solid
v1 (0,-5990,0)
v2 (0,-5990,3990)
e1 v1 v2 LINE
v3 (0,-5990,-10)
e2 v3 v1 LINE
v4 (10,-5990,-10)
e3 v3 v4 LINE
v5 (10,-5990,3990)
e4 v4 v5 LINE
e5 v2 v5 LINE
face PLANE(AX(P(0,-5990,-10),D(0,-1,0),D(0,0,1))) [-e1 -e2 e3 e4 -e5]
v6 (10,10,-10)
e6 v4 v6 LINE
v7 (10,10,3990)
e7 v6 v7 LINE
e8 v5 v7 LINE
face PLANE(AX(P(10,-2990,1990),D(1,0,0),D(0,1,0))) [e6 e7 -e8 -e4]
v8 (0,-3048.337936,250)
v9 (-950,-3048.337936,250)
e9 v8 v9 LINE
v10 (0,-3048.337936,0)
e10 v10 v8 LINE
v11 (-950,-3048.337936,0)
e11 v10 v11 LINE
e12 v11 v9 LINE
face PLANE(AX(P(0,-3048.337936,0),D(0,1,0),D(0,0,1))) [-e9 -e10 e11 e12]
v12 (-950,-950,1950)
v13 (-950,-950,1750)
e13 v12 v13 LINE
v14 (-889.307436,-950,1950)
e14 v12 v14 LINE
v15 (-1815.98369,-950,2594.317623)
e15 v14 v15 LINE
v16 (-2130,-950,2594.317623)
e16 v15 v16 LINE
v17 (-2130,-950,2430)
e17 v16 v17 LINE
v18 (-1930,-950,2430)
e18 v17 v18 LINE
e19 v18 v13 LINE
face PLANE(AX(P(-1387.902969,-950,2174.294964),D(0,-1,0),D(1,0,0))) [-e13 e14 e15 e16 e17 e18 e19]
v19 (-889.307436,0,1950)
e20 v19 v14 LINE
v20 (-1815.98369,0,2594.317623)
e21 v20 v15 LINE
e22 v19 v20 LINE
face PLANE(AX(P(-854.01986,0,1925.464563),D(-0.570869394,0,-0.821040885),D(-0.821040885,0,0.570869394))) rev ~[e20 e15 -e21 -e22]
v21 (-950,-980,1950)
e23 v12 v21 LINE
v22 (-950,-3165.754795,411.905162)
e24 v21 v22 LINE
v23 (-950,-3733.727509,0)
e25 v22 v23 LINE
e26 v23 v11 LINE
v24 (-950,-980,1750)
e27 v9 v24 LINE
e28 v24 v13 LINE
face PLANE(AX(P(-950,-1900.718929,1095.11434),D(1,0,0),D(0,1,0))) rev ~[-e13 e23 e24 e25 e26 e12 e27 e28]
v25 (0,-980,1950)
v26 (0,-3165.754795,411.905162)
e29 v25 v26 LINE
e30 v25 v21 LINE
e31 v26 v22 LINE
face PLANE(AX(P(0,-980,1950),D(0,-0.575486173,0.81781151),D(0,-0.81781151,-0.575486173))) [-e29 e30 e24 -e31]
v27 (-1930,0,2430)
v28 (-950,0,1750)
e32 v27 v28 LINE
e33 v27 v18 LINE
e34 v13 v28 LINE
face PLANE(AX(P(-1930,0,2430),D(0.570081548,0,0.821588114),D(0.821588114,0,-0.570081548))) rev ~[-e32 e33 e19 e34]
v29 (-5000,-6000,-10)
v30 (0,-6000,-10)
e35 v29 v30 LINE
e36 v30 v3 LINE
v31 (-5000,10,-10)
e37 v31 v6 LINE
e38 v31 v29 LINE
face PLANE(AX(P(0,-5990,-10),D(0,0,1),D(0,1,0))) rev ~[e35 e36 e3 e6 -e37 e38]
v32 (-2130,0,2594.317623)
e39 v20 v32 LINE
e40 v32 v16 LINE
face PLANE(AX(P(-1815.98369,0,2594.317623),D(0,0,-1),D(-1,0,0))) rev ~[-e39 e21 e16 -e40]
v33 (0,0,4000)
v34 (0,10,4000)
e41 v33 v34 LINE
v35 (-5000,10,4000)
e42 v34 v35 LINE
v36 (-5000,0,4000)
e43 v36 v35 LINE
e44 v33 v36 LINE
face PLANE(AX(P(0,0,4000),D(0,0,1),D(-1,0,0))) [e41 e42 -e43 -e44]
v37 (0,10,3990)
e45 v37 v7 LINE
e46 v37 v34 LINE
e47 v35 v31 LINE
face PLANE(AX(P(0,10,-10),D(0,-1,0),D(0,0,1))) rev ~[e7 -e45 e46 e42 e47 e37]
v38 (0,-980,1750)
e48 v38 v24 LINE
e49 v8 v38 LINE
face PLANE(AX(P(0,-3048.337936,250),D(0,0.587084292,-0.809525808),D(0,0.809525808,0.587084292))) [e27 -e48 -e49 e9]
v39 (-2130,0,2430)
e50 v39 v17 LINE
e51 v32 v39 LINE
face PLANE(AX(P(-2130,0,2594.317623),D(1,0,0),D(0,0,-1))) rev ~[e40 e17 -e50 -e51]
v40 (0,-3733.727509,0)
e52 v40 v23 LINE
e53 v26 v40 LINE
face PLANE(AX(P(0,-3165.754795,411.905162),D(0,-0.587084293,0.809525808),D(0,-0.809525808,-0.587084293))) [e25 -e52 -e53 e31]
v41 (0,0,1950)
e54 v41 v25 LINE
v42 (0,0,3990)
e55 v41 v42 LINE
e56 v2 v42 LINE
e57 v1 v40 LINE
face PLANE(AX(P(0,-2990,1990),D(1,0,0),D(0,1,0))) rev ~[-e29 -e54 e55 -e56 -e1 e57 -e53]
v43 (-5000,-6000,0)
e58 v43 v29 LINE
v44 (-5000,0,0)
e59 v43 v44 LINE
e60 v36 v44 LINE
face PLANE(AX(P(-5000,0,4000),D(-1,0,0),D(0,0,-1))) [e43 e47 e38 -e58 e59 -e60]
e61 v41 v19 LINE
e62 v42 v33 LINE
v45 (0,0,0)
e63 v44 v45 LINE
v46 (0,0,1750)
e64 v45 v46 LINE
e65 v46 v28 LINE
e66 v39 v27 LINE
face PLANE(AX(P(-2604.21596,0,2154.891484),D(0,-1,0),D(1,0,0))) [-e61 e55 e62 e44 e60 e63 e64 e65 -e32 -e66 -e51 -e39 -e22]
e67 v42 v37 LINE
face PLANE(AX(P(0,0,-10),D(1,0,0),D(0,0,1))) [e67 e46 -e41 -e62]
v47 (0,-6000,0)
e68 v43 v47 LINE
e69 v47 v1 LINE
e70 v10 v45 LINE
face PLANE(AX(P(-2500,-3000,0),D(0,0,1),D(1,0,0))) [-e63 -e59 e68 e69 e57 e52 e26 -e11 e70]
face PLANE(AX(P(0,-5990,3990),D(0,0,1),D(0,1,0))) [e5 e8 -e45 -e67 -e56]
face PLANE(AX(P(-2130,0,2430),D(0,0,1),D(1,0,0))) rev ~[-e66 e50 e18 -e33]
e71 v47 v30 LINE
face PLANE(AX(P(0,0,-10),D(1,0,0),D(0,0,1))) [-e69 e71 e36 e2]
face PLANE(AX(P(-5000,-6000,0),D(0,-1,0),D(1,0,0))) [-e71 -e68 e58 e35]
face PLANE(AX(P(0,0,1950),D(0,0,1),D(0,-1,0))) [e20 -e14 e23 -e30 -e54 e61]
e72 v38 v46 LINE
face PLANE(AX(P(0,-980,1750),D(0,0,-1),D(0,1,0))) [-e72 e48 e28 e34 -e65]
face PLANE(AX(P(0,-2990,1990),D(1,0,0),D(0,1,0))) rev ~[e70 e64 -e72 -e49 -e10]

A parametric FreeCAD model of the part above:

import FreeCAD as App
import Part
import Sketcher

V = App.Vector
Q = App.Units.Quantity

doc = App.newDocument("Part")
body = doc.addObject("PartDesign::Body", "Body")

sketch1 = doc.addObject("Sketcher::SketchObject", "Sketch")
body.addObject(sketch1)
sketch1.AttachmentSupport = (doc.XY_Plane, [""])
sketch1.MapMode = "FlatFace"
sketch1.addGeometry([
    Part.LineSegment(V(-5000, 0, 0), V(-5000, -6000, 0)),
    Part.LineSegment(V(-5000, -6000, 0), V(0, -6000, 0)),
    Part.LineSegment(V(0, -6000, 0), V(0, 0, 0)),
    Part.LineSegment(V(0, 0, 0), V(-5000, 0, 0)),
], False)
sketch1.addConstraint([
    Sketcher.Constraint("Coincident", 0, 2, 1, 1),
    Sketcher.Constraint("Coincident", 1, 2, 2, 1),
    Sketcher.Constraint("Coincident", 2, 2, 3, 1),
    Sketcher.Constraint("Coincident", 3, 2, 0, 1),
    Sketcher.Constraint("Vertical", 0),
    Sketcher.Constraint("Horizontal", 1),
    Sketcher.Constraint("Vertical", 2),
    Sketcher.Constraint("Horizontal", 3),
    Sketcher.Constraint("Coincident", 2, 2, -1, 1),
    Sketcher.Constraint("DistanceX", 1, 1, 1, 2, Q("5000 mm")),
    Sketcher.Constraint("DistanceY", 0, 2, 0, 1, Q("6000 mm")),
])
pad1 = doc.addObject("PartDesign::Pad", "Pad")
body.addObject(pad1)
pad1.Profile = sketch1
pad1.Length = 10
pad1.Reversed = True

sketch2 = doc.addObject("Sketcher::SketchObject", "Sketch001")
body.addObject(sketch2)
sketch2.AttachmentSupport = (doc.XZ_Plane, [""])
sketch2.MapMode = "FlatFace"
sketch2.addGeometry([
    Part.LineSegment(V(0, 4000, 0), V(-5000, 4000, 0)),
    Part.LineSegment(V(-5000, 4000, 0), V(-5000, -10, 0)),
    Part.LineSegment(V(-5000, -10, 0), V(0, -10, 0)),
    Part.LineSegment(V(0, -10, 0), V(0, 4000, 0)),
], False)
sketch2.addConstraint([
    Sketcher.Constraint("Coincident", 0, 2, 1, 1),
    Sketcher.Constraint("Coincident", 1, 2, 2, 1),
    Sketcher.Constraint("Coincident", 2, 2, 3, 1),
    Sketcher.Constraint("Coincident", 3, 2, 0, 1),
    Sketcher.Constraint("Horizontal", 0),
    Sketcher.Constraint("Vertical", 1),
    Sketcher.Constraint("Horizontal", 2),
    Sketcher.Constraint("Vertical", 3),
    Sketcher.Constraint("PointOnObject", 2, 2, -2),
    Sketcher.Constraint("DistanceX", 0, 2, 0, 1, Q("5000 mm")),
    Sketcher.Constraint("DistanceY", 1, 2, 1, 1, Q("4010 mm")),
    Sketcher.Constraint("DistanceY", -1, 1, 0, 2, Q("4000 mm")),
])
pad2 = doc.addObject("PartDesign::Pad", "Pad001")
body.addObject(pad2)
pad2.Profile = sketch2
pad2.Length = 10
pad2.Reversed = True

sketch3 = doc.addObject("Sketcher::SketchObject", "Sketch002")
body.addObject(sketch3)
sketch3.AttachmentSupport = (doc.YZ_Plane, [""])
sketch3.MapMode = "FlatFace"
sketch3.addGeometry([
    Part.LineSegment(V(-5990, 3990, 0), V(-5990, -10, 0)),
    Part.LineSegment(V(-5990, -10, 0), V(10, -10, 0)),
    Part.LineSegment(V(10, -10, 0), V(10, 3990, 0)),
    Part.LineSegment(V(10, 3990, 0), V(-5990, 3990, 0)),
], False)
sketch3.addConstraint([
    Sketcher.Constraint("Coincident", 0, 2, 1, 1),
    Sketcher.Constraint("Coincident", 1, 2, 2, 1),
    Sketcher.Constraint("Coincident", 2, 2, 3, 1),
    Sketcher.Constraint("Coincident", 3, 2, 0, 1),
    Sketcher.Constraint("Vertical", 0),
    Sketcher.Constraint("Horizontal", 1),
    Sketcher.Constraint("Vertical", 2),
    Sketcher.Constraint("Horizontal", 3),
    Sketcher.Constraint("DistanceX", 1, 1, 1, 2, Q("6000 mm")),
    Sketcher.Constraint("DistanceY", 0, 2, 0, 1, Q("4000 mm")),
    Sketcher.Constraint("DistanceX", 0, 2, -1, 1, Q("5990 mm")),
    Sketcher.Constraint("DistanceY", 0, 2, -1, 1, Q("10 mm")),
])
pad3 = doc.addObject("PartDesign::Pad", "Pad002")
body.addObject(pad3)
pad3.Profile = sketch3
pad3.Length = 10

sketch4 = doc.addObject("Sketcher::SketchObject", "Sketch003")
body.addObject(sketch4)
sketch4.AttachmentSupport = (doc.YZ_Plane, [""])
sketch4.MapMode = "FlatFace"
sketch4.addGeometry([
    Part.LineSegment(V(-980, 1750, 0), V(0, 1750, 0)),
    Part.LineSegment(V(0, 1750, 0), V(0, 1950, 0)),
    Part.LineSegment(V(0, 1950, 0), V(-980, 1950, 0)),
    Part.LineSegment(V(-980, 1950, 0), V(-3165.754795, 411.905162, 0)),
    Part.LineSegment(V(-3165.754795, 411.905162, 0), V(-3733.727509, 0, 0)),
    Part.LineSegment(V(-3733.727509, 0, 0), V(-3048.337936, 0, 0)),
    Part.LineSegment(V(-3048.337936, 0, 0), V(-3048.337936, 250, 0)),
    Part.LineSegment(V(-3048.337936, 250, 0), V(-980, 1750, 0)),
], False)
sketch4.addConstraint([
    Sketcher.Constraint("Coincident", 0, 2, 1, 1),
    Sketcher.Constraint("Coincident", 1, 2, 2, 1),
    Sketcher.Constraint("Coincident", 2, 2, 3, 1),
    Sketcher.Constraint("Coincident", 3, 2, 4, 1),
    Sketcher.Constraint("Coincident", 4, 2, 5, 1),
    Sketcher.Constraint("Coincident", 5, 2, 6, 1),
    Sketcher.Constraint("Coincident", 6, 2, 7, 1),
    Sketcher.Constraint("Coincident", 7, 2, 0, 1),
    Sketcher.Constraint("Horizontal", 0),
    Sketcher.Constraint("Vertical", 1),
    Sketcher.Constraint("Horizontal", 2),
    Sketcher.Constraint("Horizontal", 5),
    Sketcher.Constraint("Vertical", 6),
    Sketcher.Constraint("PointOnObject", 0, 2, -2),
    Sketcher.Constraint("PointOnObject", 4, 2, -1),
    Sketcher.Constraint("Parallel", 4, 7),
    Sketcher.Constraint("Vertical", 2, 2, 7, 2),
    Sketcher.Constraint("DistanceX", 0, 1, 0, 2, Q("980 mm")),
    Sketcher.Constraint("DistanceY", 1, 1, 1, 2, Q("200 mm")),
    Sketcher.Constraint("DistanceY", 6, 1, 6, 2, Q("250 mm")),
    Sketcher.Constraint("DistanceY", -1, 1, 0, 2, Q("1750 mm")),
    Sketcher.Constraint("Distance", 3, Q("2672.68774 mm")),
    Sketcher.Constraint("Distance", 4, Q("701.611621 mm")),
    Sketcher.Constraint("DistanceX", 5, 1, 5, 2, Q("685.389573 mm")),
])
pad4 = doc.addObject("PartDesign::Pad", "Pad003")
body.addObject(pad4)
pad4.Profile = sketch4
pad4.Length = 950
pad4.Reversed = True

sketch5 = doc.addObject("Sketcher::SketchObject", "Sketch004")
body.addObject(sketch5)
sketch5.AttachmentSupport = (doc.XZ_Plane, [""])
sketch5.MapMode = "FlatFace"
sketch5.addGeometry([
    Part.LineSegment(V(-854.01986, 1925.464563, 0), V(-1815.98369, 2594.317623, 0)),
    Part.LineSegment(V(-1815.98369, 2594.317623, 0), V(-2130, 2594.317623, 0)),
    Part.LineSegment(V(-2130, 2594.317623, 0), V(-2130, 2430, 0)),
    Part.LineSegment(V(-2130, 2430, 0), V(-1930, 2430, 0)),
    Part.LineSegment(V(-1930, 2430, 0), V(-950, 1750, 0)),
    Part.LineSegment(V(-950, 1750, 0), V(-854.01986, 1925.464563, 0)),
], False)
sketch5.addConstraint([
    Sketcher.Constraint("Coincident", 0, 2, 1, 1),
    Sketcher.Constraint("Coincident", 1, 2, 2, 1),
    Sketcher.Constraint("Coincident", 2, 2, 3, 1),
    Sketcher.Constraint("Coincident", 3, 2, 4, 1),
    Sketcher.Constraint("Coincident", 4, 2, 5, 1),
    Sketcher.Constraint("Coincident", 5, 2, 0, 1),
    Sketcher.Constraint("Horizontal", 1),
    Sketcher.Constraint("Vertical", 2),
    Sketcher.Constraint("Horizontal", 3),
    Sketcher.Constraint("DistanceX", 3, 1, 3, 2, Q("200 mm")),
    Sketcher.Constraint("Distance", 5, Q("200 mm")),
    Sketcher.Constraint("DistanceX", 1, 2, -1, 1, Q("2130 mm")),
    Sketcher.Constraint("DistanceY", -1, 1, 2, 2, Q("2430 mm")),
    Sketcher.Constraint("DistanceX", 4, 2, -1, 1, Q("950 mm")),
    Sketcher.Constraint("DistanceY", -1, 1, 4, 2, Q("1750 mm")),
    Sketcher.Constraint("DistanceX", 1, 2, 1, 1, Q("314.01631 mm")),
    Sketcher.Constraint("DistanceY", 2, 2, 2, 1, Q("164.317623 mm")),
    Sketcher.Constraint("DistanceX", 5, 2, -1, 1, Q("854.01986 mm")),
])
pad5 = doc.addObject("PartDesign::Pad", "Pad004")
body.addObject(pad5)
pad5.Profile = sketch5
pad5.Length = 950

doc.recompute()
